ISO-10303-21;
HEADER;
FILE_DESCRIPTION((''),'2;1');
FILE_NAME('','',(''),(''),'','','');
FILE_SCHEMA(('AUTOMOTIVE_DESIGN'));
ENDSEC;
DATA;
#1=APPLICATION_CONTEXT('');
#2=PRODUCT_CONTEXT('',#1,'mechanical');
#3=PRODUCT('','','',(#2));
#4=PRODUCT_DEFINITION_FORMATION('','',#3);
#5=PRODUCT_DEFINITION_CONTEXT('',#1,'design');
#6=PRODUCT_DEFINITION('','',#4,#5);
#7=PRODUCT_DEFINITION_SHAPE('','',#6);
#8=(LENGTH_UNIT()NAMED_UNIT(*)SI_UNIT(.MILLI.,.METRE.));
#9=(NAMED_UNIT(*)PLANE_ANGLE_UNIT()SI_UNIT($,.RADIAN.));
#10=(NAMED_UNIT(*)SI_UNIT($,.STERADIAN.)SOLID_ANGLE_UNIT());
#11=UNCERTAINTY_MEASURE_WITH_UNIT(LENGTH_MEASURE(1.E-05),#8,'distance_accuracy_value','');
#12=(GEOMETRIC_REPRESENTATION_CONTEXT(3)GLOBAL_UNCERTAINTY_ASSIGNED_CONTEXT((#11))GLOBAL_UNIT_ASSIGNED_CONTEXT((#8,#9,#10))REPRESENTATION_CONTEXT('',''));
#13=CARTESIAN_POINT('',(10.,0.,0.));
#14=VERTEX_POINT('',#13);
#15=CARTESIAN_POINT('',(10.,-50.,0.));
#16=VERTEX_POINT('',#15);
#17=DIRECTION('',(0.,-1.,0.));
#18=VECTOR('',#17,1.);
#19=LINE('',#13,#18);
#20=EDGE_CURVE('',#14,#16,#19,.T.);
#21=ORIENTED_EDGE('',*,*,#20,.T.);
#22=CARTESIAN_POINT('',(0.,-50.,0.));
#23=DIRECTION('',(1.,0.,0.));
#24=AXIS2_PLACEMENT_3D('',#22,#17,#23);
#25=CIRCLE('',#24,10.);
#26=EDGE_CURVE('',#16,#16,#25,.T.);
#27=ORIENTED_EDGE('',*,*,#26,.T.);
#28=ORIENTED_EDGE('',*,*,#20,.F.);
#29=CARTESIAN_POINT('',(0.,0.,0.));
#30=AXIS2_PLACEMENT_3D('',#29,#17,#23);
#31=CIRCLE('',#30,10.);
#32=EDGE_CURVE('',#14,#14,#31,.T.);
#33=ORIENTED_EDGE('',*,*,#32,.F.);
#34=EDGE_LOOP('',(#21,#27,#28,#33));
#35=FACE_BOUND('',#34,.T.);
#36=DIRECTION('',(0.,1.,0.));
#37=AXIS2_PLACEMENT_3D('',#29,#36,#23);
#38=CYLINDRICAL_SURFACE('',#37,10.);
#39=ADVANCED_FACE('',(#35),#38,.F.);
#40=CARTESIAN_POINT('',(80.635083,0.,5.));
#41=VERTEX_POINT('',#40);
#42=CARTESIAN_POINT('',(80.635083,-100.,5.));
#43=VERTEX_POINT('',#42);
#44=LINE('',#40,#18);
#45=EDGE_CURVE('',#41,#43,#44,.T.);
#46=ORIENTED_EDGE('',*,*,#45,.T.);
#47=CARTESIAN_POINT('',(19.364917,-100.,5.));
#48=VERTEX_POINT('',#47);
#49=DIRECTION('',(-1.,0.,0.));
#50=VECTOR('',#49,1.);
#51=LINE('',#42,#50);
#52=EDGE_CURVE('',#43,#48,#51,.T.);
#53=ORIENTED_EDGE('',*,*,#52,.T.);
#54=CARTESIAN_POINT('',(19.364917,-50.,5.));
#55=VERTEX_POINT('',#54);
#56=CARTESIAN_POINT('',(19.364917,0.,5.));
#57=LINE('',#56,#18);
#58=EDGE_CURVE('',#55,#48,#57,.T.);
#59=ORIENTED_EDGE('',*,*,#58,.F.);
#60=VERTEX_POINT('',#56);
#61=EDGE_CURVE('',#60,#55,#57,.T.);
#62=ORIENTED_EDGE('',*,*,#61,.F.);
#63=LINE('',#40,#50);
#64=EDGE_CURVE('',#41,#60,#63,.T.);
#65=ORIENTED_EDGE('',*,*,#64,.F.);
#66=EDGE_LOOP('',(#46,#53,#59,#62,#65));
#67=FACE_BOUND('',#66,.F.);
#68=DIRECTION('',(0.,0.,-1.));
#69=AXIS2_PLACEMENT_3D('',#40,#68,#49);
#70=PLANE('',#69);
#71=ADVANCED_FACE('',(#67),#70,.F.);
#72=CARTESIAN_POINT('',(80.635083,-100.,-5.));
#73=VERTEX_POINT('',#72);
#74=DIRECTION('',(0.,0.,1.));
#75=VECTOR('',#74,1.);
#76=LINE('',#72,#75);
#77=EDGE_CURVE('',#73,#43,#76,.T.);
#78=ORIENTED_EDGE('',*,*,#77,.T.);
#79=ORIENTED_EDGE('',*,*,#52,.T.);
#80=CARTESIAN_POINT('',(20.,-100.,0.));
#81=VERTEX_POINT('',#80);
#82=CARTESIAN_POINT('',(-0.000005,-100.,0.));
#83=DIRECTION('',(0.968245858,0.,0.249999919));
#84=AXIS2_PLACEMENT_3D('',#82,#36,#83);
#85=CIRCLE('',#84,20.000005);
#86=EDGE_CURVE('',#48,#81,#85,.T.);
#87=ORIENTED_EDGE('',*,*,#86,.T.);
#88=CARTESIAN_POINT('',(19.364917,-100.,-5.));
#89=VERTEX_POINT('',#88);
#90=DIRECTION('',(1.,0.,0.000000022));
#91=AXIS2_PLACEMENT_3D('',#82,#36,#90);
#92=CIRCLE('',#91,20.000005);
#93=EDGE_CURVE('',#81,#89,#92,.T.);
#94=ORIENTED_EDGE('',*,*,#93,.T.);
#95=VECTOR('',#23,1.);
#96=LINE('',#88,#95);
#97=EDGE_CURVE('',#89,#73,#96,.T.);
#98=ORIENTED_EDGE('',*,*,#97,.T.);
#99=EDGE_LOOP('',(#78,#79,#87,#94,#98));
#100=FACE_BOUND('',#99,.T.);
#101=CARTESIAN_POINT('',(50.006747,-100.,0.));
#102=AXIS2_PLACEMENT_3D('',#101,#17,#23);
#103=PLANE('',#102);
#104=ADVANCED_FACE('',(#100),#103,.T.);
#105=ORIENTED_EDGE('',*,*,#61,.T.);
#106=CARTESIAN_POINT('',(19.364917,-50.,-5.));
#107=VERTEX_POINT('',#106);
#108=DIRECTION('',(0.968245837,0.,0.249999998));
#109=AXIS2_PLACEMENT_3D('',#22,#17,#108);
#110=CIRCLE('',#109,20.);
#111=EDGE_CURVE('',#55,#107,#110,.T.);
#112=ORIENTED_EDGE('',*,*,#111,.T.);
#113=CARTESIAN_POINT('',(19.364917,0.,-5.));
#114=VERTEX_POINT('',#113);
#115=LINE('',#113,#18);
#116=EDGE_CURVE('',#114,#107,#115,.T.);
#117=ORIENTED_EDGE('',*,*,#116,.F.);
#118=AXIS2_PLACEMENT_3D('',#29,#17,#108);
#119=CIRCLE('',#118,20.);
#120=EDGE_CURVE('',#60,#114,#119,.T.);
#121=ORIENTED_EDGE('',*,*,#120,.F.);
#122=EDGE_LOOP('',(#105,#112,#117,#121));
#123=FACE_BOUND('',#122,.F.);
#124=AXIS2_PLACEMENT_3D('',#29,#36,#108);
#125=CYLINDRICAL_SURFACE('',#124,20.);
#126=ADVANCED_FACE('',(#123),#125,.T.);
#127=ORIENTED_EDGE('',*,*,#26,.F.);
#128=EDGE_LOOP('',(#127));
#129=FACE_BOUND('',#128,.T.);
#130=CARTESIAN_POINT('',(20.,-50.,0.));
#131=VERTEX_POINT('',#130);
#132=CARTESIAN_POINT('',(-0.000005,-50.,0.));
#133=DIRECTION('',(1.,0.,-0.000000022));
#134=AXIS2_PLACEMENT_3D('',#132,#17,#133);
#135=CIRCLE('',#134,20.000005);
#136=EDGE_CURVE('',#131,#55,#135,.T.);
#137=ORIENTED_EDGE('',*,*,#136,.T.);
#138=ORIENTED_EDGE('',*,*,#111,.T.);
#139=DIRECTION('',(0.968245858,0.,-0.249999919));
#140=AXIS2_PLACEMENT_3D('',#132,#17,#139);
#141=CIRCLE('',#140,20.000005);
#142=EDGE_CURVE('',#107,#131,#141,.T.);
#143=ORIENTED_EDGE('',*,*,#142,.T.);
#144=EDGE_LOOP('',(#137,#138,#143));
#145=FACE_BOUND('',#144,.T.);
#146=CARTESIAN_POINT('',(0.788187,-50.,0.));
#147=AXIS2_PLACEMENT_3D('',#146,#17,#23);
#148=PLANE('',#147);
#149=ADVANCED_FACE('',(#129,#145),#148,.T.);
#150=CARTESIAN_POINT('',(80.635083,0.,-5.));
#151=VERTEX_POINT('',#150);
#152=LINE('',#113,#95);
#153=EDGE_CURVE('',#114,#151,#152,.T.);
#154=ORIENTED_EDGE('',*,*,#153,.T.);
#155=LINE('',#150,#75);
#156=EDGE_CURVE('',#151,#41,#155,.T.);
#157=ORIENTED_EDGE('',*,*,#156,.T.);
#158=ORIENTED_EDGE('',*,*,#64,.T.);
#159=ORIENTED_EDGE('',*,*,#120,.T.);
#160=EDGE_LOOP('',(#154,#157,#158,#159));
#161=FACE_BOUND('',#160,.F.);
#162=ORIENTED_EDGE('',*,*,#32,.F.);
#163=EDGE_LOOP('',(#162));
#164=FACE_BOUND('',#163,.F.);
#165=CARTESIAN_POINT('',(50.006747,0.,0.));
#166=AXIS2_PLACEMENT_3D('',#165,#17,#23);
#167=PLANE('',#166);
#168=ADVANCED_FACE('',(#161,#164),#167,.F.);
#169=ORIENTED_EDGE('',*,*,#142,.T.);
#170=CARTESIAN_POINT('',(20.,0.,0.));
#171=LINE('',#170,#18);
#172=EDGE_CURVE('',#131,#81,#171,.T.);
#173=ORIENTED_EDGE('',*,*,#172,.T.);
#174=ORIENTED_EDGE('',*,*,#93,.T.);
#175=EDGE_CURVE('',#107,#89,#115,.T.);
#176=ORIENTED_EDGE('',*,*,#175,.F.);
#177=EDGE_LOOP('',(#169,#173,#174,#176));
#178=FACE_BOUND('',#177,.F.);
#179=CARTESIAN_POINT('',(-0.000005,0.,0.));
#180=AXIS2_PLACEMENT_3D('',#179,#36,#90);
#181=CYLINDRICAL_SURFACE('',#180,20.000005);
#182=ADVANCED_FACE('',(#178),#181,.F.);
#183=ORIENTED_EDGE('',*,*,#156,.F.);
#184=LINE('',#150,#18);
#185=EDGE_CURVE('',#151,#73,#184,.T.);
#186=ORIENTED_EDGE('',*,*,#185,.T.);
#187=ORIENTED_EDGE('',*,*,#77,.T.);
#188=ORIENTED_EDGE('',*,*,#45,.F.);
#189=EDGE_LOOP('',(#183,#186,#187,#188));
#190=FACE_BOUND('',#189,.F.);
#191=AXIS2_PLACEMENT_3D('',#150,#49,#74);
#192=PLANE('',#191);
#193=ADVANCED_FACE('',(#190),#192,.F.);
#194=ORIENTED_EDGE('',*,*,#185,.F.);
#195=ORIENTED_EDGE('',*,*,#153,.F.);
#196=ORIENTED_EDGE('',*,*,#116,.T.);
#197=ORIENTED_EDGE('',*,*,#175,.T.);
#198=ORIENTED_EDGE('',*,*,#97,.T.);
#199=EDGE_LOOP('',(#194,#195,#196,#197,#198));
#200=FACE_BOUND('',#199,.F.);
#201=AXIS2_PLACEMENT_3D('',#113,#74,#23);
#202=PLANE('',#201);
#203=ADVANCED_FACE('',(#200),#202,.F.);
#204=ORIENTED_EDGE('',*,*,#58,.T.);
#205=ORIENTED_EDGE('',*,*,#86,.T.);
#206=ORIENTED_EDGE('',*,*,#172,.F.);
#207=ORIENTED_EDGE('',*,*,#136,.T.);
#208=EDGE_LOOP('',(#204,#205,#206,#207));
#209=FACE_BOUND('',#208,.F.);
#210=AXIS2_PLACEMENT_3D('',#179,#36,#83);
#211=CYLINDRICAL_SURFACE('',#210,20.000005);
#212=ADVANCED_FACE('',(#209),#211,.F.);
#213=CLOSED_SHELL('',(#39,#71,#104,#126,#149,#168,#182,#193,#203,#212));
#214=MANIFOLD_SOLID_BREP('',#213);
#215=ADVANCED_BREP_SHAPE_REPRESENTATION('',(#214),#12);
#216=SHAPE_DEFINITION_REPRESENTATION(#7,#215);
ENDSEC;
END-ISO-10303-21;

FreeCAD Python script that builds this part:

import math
import FreeCAD as App
import Part
import Sketcher
Q = App.Units.Quantity

doc = App.newDocument("Part")
body = doc.addObject("PartDesign::Body", "Body")

# Sketch on XZ plane
sketch1 = doc.addObject("Sketcher::SketchObject", "Sketch")
body.addObject(sketch1)
sketch1.AttachmentSupport = (doc.XZ_Plane, [""])
sketch1.MapMode = "FlatFace"
sketch1.addGeometry([
    Part.ArcOfCircle(Part.Circle(App.Vector(0, 0, 0), App.Vector(0, 0, 1), 20), math.radians(-14.48), math.radians(0)),
    Part.ArcOfCircle(Part.Circle(App.Vector(0, 0, 0), App.Vector(0, 0, 1), 20), math.radians(0), math.radians(14.48)),
    Part.ArcOfCircle(Part.Circle(App.Vector(0, 0, 0), App.Vector(0, 0, 1), 20), math.radians(14), math.radians(346)),
    Part.Circle(App.Vector(0, 0, 0), App.Vector(0, 0, 1), 10),
], False)
sketch1.addConstraint([
    Sketcher.Constraint("Tangent", 0, 2, 1, 1),
    Sketcher.Constraint("Tangent", 1, 2, 2, 1),
    Sketcher.Constraint("Tangent", 2, 2, 0, 1),
    Sketcher.Constraint("Coincident", 0, 3, -1, 1),
    Sketcher.Constraint("Coincident", 3, 3, -1, 1),
    Sketcher.Constraint("PointOnObject", 0, 2, -1),
    Sketcher.Constraint("Vertical", 1, 2, 2, 2),
    Sketcher.Constraint("Diameter", 3, Q("20 mm")),
    Sketcher.Constraint("Radius", 2, Q("20 mm")),
    Sketcher.Constraint("DistanceY", -1, 1, 1, 2, Q("5 mm")),
])
pad1 = doc.addObject("PartDesign::Pad", "Pad")
body.addObject(pad1)
pad1.Profile = sketch1
pad1.Length = 50

# Sketch on XZ plane
sketch2 = doc.addObject("Sketcher::SketchObject", "Sketch001")
body.addObject(sketch2)
sketch2.AttachmentSupport = (doc.XZ_Plane, [""])
sketch2.MapMode = "FlatFace"
sketch2.addGeometry([
    Part.ArcOfCircle(Part.Circle(App.Vector(0, 0, 0), App.Vector(0, 0, 1), 20), math.radians(0), math.radians(14.48)),  # 0
    Part.ArcOfCircle(Part.Circle(App.Vector(0, 0, 0), App.Vector(0, 0, 1), 20), math.radians(-14.48), math.radians(0)),  # 1
    Part.LineSegment(App.Vector(19, -5, 0), App.Vector(81, -5, 0)),  # 2
    Part.LineSegment(App.Vector(81, -5, 0), App.Vector(81, 5, 0)),  # 3
    Part.LineSegment(App.Vector(81, 5, 0), App.Vector(19, 5, 0)),  # 4
], False)
sketch2.addConstraint([
    Sketcher.Constraint("Tangent", 0, 1, 1, 2),
    Sketcher.Constraint("Coincident", 1, 1, 2, 1),
    Sketcher.Constraint("Coincident", 2, 2, 3, 1),
    Sketcher.Constraint("Coincident", 3, 2, 4, 1),
    Sketcher.Constraint("Coincident", 4, 2, 0, 2),
    Sketcher.Constraint("Horizontal", 2),
    Sketcher.Constraint("Vertical", 3),
    Sketcher.Constraint("Horizontal", 4),
    Sketcher.Constraint("Coincident", 0, 3, -1, 1),
    Sketcher.Constraint("Equal", 0, 1),
    Sketcher.Constraint("PointOnObject", 0, 1, -1),
    Sketcher.Constraint("Vertical", 1, 1, 4, 2),
    Sketcher.Constraint("DistanceY", 3, 1, 3, 2, Q("10 mm")),
    Sketcher.Constraint("DistanceX", -1, 1, 0, 1, Q("20 mm")),
    Sketcher.Constraint("DistanceX", 2, 1, 2, 2, Q("61.270166 mm")),
])
pad2 = doc.addObject("PartDesign::Pad", "Pad001")
body.addObject(pad2)
pad2.Profile = sketch2
pad2.Length = 100

doc.recompute()
